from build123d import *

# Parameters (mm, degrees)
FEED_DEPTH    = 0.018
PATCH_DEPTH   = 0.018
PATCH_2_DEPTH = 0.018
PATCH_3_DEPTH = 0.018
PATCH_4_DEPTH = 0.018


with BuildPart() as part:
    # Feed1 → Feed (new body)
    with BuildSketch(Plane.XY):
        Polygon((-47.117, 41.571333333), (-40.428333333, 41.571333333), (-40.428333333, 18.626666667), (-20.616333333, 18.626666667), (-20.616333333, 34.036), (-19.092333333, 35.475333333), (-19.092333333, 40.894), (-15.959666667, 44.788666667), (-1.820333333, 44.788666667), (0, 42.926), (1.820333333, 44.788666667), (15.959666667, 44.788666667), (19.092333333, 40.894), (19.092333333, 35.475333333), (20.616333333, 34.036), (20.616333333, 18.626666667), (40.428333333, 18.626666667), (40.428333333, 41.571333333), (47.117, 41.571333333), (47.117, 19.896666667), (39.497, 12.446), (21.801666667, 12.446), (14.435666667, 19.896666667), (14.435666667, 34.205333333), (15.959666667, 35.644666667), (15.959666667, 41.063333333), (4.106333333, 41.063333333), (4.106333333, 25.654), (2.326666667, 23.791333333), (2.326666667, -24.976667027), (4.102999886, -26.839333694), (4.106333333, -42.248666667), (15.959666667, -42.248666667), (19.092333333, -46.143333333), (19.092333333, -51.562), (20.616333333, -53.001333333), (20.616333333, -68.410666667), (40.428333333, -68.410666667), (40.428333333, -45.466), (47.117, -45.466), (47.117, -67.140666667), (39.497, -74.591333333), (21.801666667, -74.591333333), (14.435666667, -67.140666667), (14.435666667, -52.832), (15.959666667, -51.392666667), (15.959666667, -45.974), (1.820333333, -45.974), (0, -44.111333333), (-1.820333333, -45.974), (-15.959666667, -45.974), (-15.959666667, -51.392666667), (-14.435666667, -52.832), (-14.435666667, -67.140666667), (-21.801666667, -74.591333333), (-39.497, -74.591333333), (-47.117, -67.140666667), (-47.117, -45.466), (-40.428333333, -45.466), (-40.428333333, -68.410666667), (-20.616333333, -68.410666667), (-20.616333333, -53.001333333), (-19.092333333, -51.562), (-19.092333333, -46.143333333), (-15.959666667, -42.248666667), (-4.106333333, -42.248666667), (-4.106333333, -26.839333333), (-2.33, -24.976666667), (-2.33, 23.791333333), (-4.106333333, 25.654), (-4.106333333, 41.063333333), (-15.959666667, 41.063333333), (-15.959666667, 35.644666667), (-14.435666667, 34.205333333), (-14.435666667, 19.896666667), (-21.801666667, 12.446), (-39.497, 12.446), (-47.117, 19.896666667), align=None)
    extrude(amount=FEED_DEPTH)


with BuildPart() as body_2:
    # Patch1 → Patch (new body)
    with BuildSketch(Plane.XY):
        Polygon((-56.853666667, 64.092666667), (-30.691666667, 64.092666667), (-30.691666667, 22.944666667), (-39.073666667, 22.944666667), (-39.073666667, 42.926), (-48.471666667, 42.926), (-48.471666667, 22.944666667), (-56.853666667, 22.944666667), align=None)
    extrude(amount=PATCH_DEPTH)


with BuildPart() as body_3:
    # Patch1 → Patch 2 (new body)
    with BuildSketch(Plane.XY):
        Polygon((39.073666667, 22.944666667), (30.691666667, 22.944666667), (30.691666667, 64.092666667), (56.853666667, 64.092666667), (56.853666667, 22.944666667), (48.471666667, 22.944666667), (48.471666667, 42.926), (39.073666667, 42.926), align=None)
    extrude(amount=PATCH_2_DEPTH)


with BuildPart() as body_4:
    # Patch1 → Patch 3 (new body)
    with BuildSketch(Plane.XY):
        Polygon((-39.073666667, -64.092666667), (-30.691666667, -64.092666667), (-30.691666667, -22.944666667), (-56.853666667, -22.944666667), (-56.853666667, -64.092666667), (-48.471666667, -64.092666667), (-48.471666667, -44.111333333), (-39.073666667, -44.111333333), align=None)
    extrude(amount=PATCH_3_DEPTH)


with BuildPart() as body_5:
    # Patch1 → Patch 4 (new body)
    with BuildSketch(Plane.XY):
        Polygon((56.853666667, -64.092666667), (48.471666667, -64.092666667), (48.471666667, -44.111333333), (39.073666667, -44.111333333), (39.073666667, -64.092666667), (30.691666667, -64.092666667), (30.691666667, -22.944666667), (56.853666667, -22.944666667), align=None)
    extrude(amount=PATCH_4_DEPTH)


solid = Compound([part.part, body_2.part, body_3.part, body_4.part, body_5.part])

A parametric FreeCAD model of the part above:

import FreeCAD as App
import Part
import Sketcher
Q = App.Units.Quantity


def add_polygon(sketch, points):
    """Adds a closed chain of lines whose ends are joined by coincident constraints."""
    first, n = sketch.GeometryCount, len(points)
    for a, b in zip(points, points[1:] + points[:1]):
        sketch.addGeometry(Part.LineSegment(App.Vector(*a, 0), App.Vector(*b, 0)), False)
    for i in range(n):
        sketch.addConstraint(Sketcher.Constraint("Coincident", first + i, 2, first + (i + 1) % n, 1))

doc = App.newDocument("Part")
body = doc.addObject("PartDesign::Body", "Body")

# Sketch on XY plane
sketch1 = doc.addObject("Sketcher::SketchObject", "Sketch")
body.addObject(sketch1)
sketch1.AttachmentSupport = (doc.XY_Plane, [""])
sketch1.MapMode = "FlatFace"
add_polygon(sketch1, [(-40.4, 41.6), (-47.1, 41.6), (-47.1, 19.9), (-39.5, 12.4), (-21.8, 12.4), (-14.4, 19.9), (-14.4, 34.2), (-16, 35.6), (-16, 41.1), (-4.1, 41.1), (-4.1, 25.7), (-2.3, 23.8), (-2.3, -25), (-4.1, -26.8), (-4.1, -42.2), (-16, -42.2), (-19.1, -46.1), (-19.1, -51.6), (-20.6, -53), (-20.6, -68.4), (-40.4, -68.4), (-40.4, -45.5), (-47.1, -45.5), (-47.1, -67.1), (-39.5, -74.6), (-21.8, -74.6), (-14.4, -67.1), (-14.4, -52.8), (-16, -51.4), (-16, -46), (-1.8, -46), (0, -44.1), (1.8, -46), (16, -46), (16, -51.4), (14.4, -52.8), (14.4, -67.1), (21.8, -74.6), (39.5, -74.6), (47.1, -67.1), (47.1, -45.5), (40.4, -45.5), (40.4, -68.4), (20.6, -68.4), (20.6, -53), (19.1, -51.6), (19.1, -46.1), (16, -42.2), (4.1, -42.2), (4.1, -26.8), (2.3, -25), (2.3, 23.8), (4.1, 25.7), (4.1, 41.1), (16, 41.1), (16, 35.6), (14.4, 34.2), (14.4, 19.9), (21.8, 12.4), (39.5, 12.4), (47.1, 19.9), (47.1, 41.6), (40.4, 41.6), (40.4, 18.6), (20.6, 18.6), (20.6, 34), (19.1, 35.5), (19.1, 40.9), (16, 44.8), (1.8, 44.8), (0, 42.9), (-1.8, 44.8), (-16, 44.8), (-19.1, 40.9), (-19.1, 35.5), (-20.6, 34), (-20.6, 18.6), (-40.4, 18.6)])  # lines 0-77
sketch1.addConstraint([
    Sketcher.Constraint("Horizontal", 0),
    Sketcher.Constraint("Vertical", 1),
    Sketcher.Constraint("Horizontal", 3),
    Sketcher.Constraint("Vertical", 5),
    Sketcher.Constraint("Vertical", 7),
    Sketcher.Constraint("Horizontal", 8),
    Sketcher.Constraint("Vertical", 9),
    Sketcher.Constraint("Vertical", 11),
    Sketcher.Constraint("Vertical", 13),
    Sketcher.Constraint("Horizontal", 14),
    Sketcher.Constraint("Vertical", 16),
    Sketcher.Constraint("Vertical", 18),
    Sketcher.Constraint("Horizontal", 19),
    Sketcher.Constraint("Vertical", 20),
    Sketcher.Constraint("Horizontal", 21),
    Sketcher.Constraint("Vertical", 22),
    Sketcher.Constraint("Horizontal", 24),
    Sketcher.Constraint("Vertical", 26),
    Sketcher.Constraint("Vertical", 28),
    Sketcher.Constraint("Horizontal", 29),
    Sketcher.Constraint("Horizontal", 32),
    Sketcher.Constraint("Vertical", 33),
    Sketcher.Constraint("Vertical", 35),
    Sketcher.Constraint("Horizontal", 37),
    Sketcher.Constraint("Vertical", 39),
    Sketcher.Constraint("Horizontal", 40),
    Sketcher.Constraint("Vertical", 41),
    Sketcher.Constraint("Horizontal", 42),
    Sketcher.Constraint("Vertical", 43),
    Sketcher.Constraint("Vertical", 45),
    Sketcher.Constraint("Horizontal", 47),
    Sketcher.Constraint("Vertical", 50),
    Sketcher.Constraint("Vertical", 52),
    Sketcher.Constraint("Horizontal", 53),
    Sketcher.Constraint("Vertical", 54),
    Sketcher.Constraint("Vertical", 56),
    Sketcher.Constraint("Horizontal", 58),
    Sketcher.Constraint("Vertical", 60),
    Sketcher.Constraint("Horizontal", 61),
    Sketcher.Constraint("Vertical", 62),
    Sketcher.Constraint("Horizontal", 63),
    Sketcher.Constraint("Vertical", 64),
    Sketcher.Constraint("Vertical", 66),
    Sketcher.Constraint("Horizontal", 68),
    Sketcher.Constraint("Horizontal", 71),
    Sketcher.Constraint("Vertical", 73),
    Sketcher.Constraint("Vertical", 75),
    Sketcher.Constraint("Horizontal", 76),
    Sketcher.Constraint("Vertical", 77),
    Sketcher.Constraint("Symmetric", 29, 2, 31, 2, -2),
    Sketcher.Constraint("Symmetric", 27, 2, 33, 2, -2),
    Sketcher.Constraint("Symmetric", 26, 2, 34, 2, -2),
    Sketcher.Constraint("Symmetric", 24, 2, 36, 2, -2),
    Sketcher.Constraint("Symmetric", 22, 2, 38, 2, -2),
    Sketcher.Constraint("Symmetric", 20, 2, 40, 2, -2),
    Sketcher.Constraint("Symmetric", 18, 2, 42, 2, -2),
    Sketcher.Constraint("Symmetric", 16, 2, 44, 2, -2),
    Sketcher.Constraint("Symmetric", 14, 2, 46, 2, -2),
    Sketcher.Constraint("Symmetric", 9, 2, 51, 2, -2),
    Sketcher.Constraint("Symmetric", 7, 2, 53, 2, -2),
    Sketcher.Constraint("Symmetric", 5, 2, 55, 2, -2),
    Sketcher.Constraint("Symmetric", 3, 2, 57, 2, -2),
    Sketcher.Constraint("Symmetric", 1, 2, 59, 2, -2),
    Sketcher.Constraint("Symmetric", 68, 2, 70, 2, -2),
    Sketcher.Constraint("Symmetric", 66, 2, 72, 2, -2),
    Sketcher.Constraint("Symmetric", 64, 2, 74, 2, -2),
    Sketcher.Constraint("Symmetric", 62, 2, 76, 2, -2),
    Sketcher.Constraint("PointOnObject", 30, 2, -2),
    Sketcher.Constraint("PointOnObject", 69, 2, -2),
    Sketcher.Constraint("Parallel", 2, 23),
    Sketcher.Constraint("Parallel", 4, 25),
    Sketcher.Constraint("Parallel", 6, 27),
    Sketcher.Constraint("Parallel", 17, 34),
    Sketcher.Constraint("Parallel", 27, 44),
    Sketcher.Constraint("Parallel", 10, 49),
    Sketcher.Constraint("Parallel", 34, 55),
    Sketcher.Constraint("Parallel", 36, 57),
    Sketcher.Constraint("Parallel", 38, 59),
    Sketcher.Constraint("Parallel", 44, 65),
    Sketcher.Constraint("Parallel", 46, 67),
    Sketcher.Constraint("Parallel", 30, 69),
    Sketcher.Constraint("Parallel", 15, 72),
    Sketcher.Constraint("Parallel", 55, 74),
    Sketcher.Constraint("Horizontal", 1, 2, 4, 2),
    Sketcher.Constraint("Horizontal", 22, 2, 25, 2),
    Sketcher.Constraint("Horizontal", 25, 2, 35, 2),
    Sketcher.Constraint("Horizontal", 15, 2, 45, 2),
    Sketcher.Constraint("Horizontal", 12, 2, 48, 2),
    Sketcher.Constraint("Horizontal", 11, 2, 49, 2),
    Sketcher.Constraint("Horizontal", 10, 2, 50, 2),
    Sketcher.Constraint("Horizontal", 0, 2, 60, 2),
    Sketcher.Constraint("Vertical", 9, 2, 12, 2),
    Sketcher.Constraint("Vertical", 7, 2, 14, 2),
    Sketcher.Constraint("Vertical", 1, 2, 21, 2),
    Sketcher.Constraint("Vertical", 2, 2, 23, 2),
    Sketcher.Constraint("Vertical", 3, 2, 24, 2),
    Sketcher.Constraint("Vertical", 14, 2, 27, 2),
    Sketcher.Constraint("Vertical", 47, 2, 51, 2),
    Sketcher.Constraint("Vertical", 41, 2, 61, 2),
    Sketcher.Constraint("Vertical", 43, 2, 63, 2),
    Sketcher.Constraint("Vertical", 45, 2, 65, 2),
    Sketcher.Constraint("Vertical", 54, 2, 67, 2),
    Sketcher.Constraint("Vertical", 31, 2, 68, 2),
    Sketcher.Constraint("Equal", 24, 37),
    Sketcher.Constraint("Equal", 9, 13),
    Sketcher.Constraint("Equal", 7, 16),
    Sketcher.Constraint("Equal", 13, 18),
    Sketcher.Constraint("Equal", 1, 22),
    Sketcher.Constraint("Equal", 5, 26),
    Sketcher.Constraint("Equal", 16, 28),
    Sketcher.Constraint("Equal", 41, 62),
    Sketcher.Constraint("Equal", 52, 64),
    Sketcher.Constraint("Equal", 54, 66),
    Sketcher.Constraint("Equal", 10, 12),
    Sketcher.Constraint("Equal", 6, 17),
    Sketcher.Constraint("DistanceX", 19, 2, 19, 1, Q("0.78 in")),
    Sketcher.Constraint("DistanceY", 11, 2, 11, 1, Q("1.92 in")),
    Sketcher.Constraint("DistanceY", -1, 1, 2, 2, Q("0.49 in")),
    Sketcher.Constraint("DistanceY", -1, 1, 9, 2, Q("1.01 in")),
    Sketcher.Constraint("DistanceY", 16, 2, -1, 1, Q("2.03 in")),
    Sketcher.Constraint("DistanceY", 20, 2, -1, 1, Q("1.79 in")),
    Sketcher.Constraint("DistanceY", 26, 2, -1, 1, Q("2.08 in")),
    Sketcher.Constraint("DistanceY", 28, 2, -1, 1, Q("1.81 in")),
    Sketcher.Constraint("DistanceY", -1, 1, 64, 2, Q("1.34 in")),
    Sketcher.Constraint("DistanceY", -1, 1, 69, 2, Q("1.69 in")),
    Sketcher.Constraint("DistanceX", 0, 2, -1, 1, Q("1.855 in")),
    Sketcher.Constraint("DistanceX", 2, 2, -1, 1, Q("1.555 in")),
    Sketcher.Constraint("DistanceX", 10, 2, -1, 1, Q("2.33 mm")),
    Sketcher.Constraint("DistanceX", -1, 1, 48, 2, Q("4.103 mm")),
    Sketcher.Constraint("Distance", 6, Q("2.096248 mm")),
    Sketcher.Constraint("DistanceX", 0, 2, 0, 1, Q("6.688667 mm")),
    Sketcher.Constraint("DistanceX", 3, 1, 3, 2, Q("17.695333 mm")),
    Sketcher.Constraint("DistanceX", 8, 1, 8, 2, Q("11.853333 mm")),
    Sketcher.Constraint("DistanceX", 29, 1, 29, 2, Q("14.139333 mm")),
    Sketcher.Constraint("DistanceY", 1, 2, 1, 1, Q("21.674667 mm")),
    Sketcher.Constraint("DistanceY", 7, 1, 7, 2, Q("5.418667 mm")),
    Sketcher.Constraint("Distance", 4, Q("10.477137 mm")),
    Sketcher.Constraint("Distance", 10, Q("2.573886 mm")),
])
pad1 = doc.addObject("PartDesign::Pad", "Pad")
body.addObject(pad1)
pad1.Profile = sketch1
pad1.Length = 0.018
body2 = doc.addObject("PartDesign::Body", "Body001")

# Sketch on XY plane
sketch2 = doc.addObject("Sketcher::SketchObject", "Sketch001")
body2.addObject(sketch2)
sketch2.AttachmentSupport = (doc.getObject("XY_Plane001"), [""])
sketch2.MapMode = "FlatFace"
add_polygon(sketch2, [(-31, 64), (-57, 64), (-57, 23), (-48, 23), (-48, 43), (-39, 43), (-39, 23), (-31, 23)])  # lines 0-7
sketch2.addConstraint([
    Sketcher.Constraint("Horizontal", 0),
    Sketcher.Constraint("Vertical", 1),
    Sketcher.Constraint("Horizontal", 2),
    Sketcher.Constraint("Vertical", 3),
    Sketcher.Constraint("Horizontal", 4),
    Sketcher.Constraint("Vertical", 5),
    Sketcher.Constraint("Horizontal", 6),
    Sketcher.Constraint("Vertical", 7),
    Sketcher.Constraint("Horizontal", 2, 2, 5, 2),
    Sketcher.Constraint("Equal", 2, 6),
    Sketcher.Constraint("DistanceX", 0, 2, 0, 1, Q("1.03 in")),
    Sketcher.Constraint("DistanceX", 2, 1, 2, 2, Q("0.33 in")),
    Sketcher.Constraint("DistanceY", 1, 2, 1, 1, Q("1.62 in")),
    Sketcher.Constraint("DistanceY", -1, 1, 3, 2, Q("1.69 in")),
    Sketcher.Constraint("DistanceY", 3, 1, 3, 2, Q("19.981333 mm")),
    Sketcher.Constraint("DistanceX", 0, 2, -1, 1, Q("56.853667 mm")),
])
pad2 = doc.addObject("PartDesign::Pad", "Pad001")
body2.addObject(pad2)
pad2.Profile = sketch2
pad2.Length = 0.018
body3 = doc.addObject("PartDesign::Body", "Body002")

# Sketch on XY plane
sketch3 = doc.addObject("Sketcher::SketchObject", "Sketch002")
body3.addObject(sketch3)
sketch3.AttachmentSupport = (doc.getObject("XY_Plane002"), [""])
sketch3.MapMode = "FlatFace"
add_polygon(sketch3, [(31, 23), (39, 23), (39, 43), (48, 43), (48, 23), (57, 23), (57, 64), (31, 64)])  # lines 0-7
sketch3.addConstraint([
    Sketcher.Constraint("Horizontal", 0),
    Sketcher.Constraint("Vertical", 1),
    Sketcher.Constraint("Horizontal", 2),
    Sketcher.Constraint("Vertical", 3),
    Sketcher.Constraint("Horizontal", 4),
    Sketcher.Constraint("Vertical", 5),
    Sketcher.Constraint("Horizontal", 6),
    Sketcher.Constraint("Vertical", 7),
    Sketcher.Constraint("Horizontal", 0, 2, 3, 2),
    Sketcher.Constraint("Equal", 0, 4),
    Sketcher.Constraint("DistanceX", 0, 1, 0, 2, Q("0.33 in")),
    Sketcher.Constraint("DistanceX", 2, 1, 2, 2, Q("0.37 in")),
    Sketcher.Constraint("DistanceY", 5, 1, 5, 2, Q("1.62 in")),
    Sketcher.Constraint("DistanceY", -1, 1, 1, 2, Q("1.69 in")),
    Sketcher.Constraint("DistanceY", 1, 1, 1, 2, Q("19.981333 mm")),
    Sketcher.Constraint("DistanceX", -1, 1, 0, 2, Q("39.073667 mm")),
])
pad3 = doc.addObject("PartDesign::Pad", "Pad002")
body3.addObject(pad3)
pad3.Profile = sketch3
pad3.Length = 0.018
body4 = doc.addObject("PartDesign::Body", "Body003")

# Sketch on XY plane
sketch4 = doc.addObject("Sketcher::SketchObject", "Sketch003")
body4.addObject(sketch4)
sketch4.AttachmentSupport = (doc.getObject("XY_Plane003"), [""])
sketch4.MapMode = "FlatFace"
add_polygon(sketch4, [(-39, -64), (-31, -64), (-31, -23), (-57, -23), (-57, -64), (-48, -64), (-48, -44), (-39, -44)])  # lines 0-7
sketch4.addConstraint([
    Sketcher.Constraint("Horizontal", 0),
    Sketcher.Constraint("Vertical", 1),
    Sketcher.Constraint("Horizontal", 2),
    Sketcher.Constraint("Vertical", 3),
    Sketcher.Constraint("Horizontal", 4),
    Sketcher.Constraint("Vertical", 5),
    Sketcher.Constraint("Horizontal", 6),
    Sketcher.Constraint("Vertical", 7),
    Sketcher.Constraint("Horizontal", 0, 2, 3, 2),
    Sketcher.Constraint("Equal", 0, 4),
    Sketcher.Constraint("DistanceX", 0, 1, 0, 2, Q("0.33 in")),
    Sketcher.Constraint("DistanceX", 2, 2, 2, 1, Q("1.03 in")),
    Sketcher.Constraint("DistanceY", 1, 1, 1, 2, Q("1.62 in")),
    Sketcher.Constraint("DistanceY", 5, 1, 5, 2, Q("19.981333 mm")),
    Sketcher.Constraint("DistanceX", 0, 2, -1, 1, Q("30.691667 mm")),
    Sketcher.Constraint("DistanceY", 0, 2, -1, 1, Q("64.092667 mm")),
])
pad4 = doc.addObject("PartDesign::Pad", "Pad003")
body4.addObject(pad4)
pad4.Profile = sketch4
pad4.Length = 0.018
body5 = doc.addObject("PartDesign::Body", "Body004")

# Sketch on XY plane
sketch5 = doc.addObject("Sketcher::SketchObject", "Sketch004")
body5.addObject(sketch5)
sketch5.AttachmentSupport = (doc.getObject("XY_Plane004"), [""])
sketch5.MapMode = "FlatFace"
add_polygon(sketch5, [(48, -64), (57, -64), (57, -23), (31, -23), (31, -64), (39, -64), (39, -44), (48, -44)])  # lines 0-7
sketch5.addConstraint([
    Sketcher.Constraint("Horizontal", 0),
    Sketcher.Constraint("Vertical", 1),
    Sketcher.Constraint("Horizontal", 2),
    Sketcher.Constraint("Vertical", 3),
    Sketcher.Constraint("Horizontal", 4),
    Sketcher.Constraint("Vertical", 5),
    Sketcher.Constraint("Horizontal", 6),
    Sketcher.Constraint("Vertical", 7),
    Sketcher.Constraint("Horizontal", 0, 2, 3, 2),
    Sketcher.Constraint("Equal", 0, 4),
    Sketcher.Constraint("DistanceX", 0, 1, 0, 2, Q("0.33 in")),
    Sketcher.Constraint("DistanceX", 2, 2, 2, 1, Q("1.03 in")),
    Sketcher.Constraint("DistanceY", 1, 1, 1, 2, Q("1.62 in")),
    Sketcher.Constraint("DistanceY", 5, 1, 5, 2, Q("19.981333 mm")),
    Sketcher.Constraint("DistanceX", -1, 1, 0, 2, Q("56.853667 mm")),
    Sketcher.Constraint("DistanceY", 0, 2, -1, 1, Q("64.092667 mm")),
])
pad5 = doc.addObject("PartDesign::Pad", "Pad004")
body5.addObject(pad5)
pad5.Profile = sketch5
pad5.Length = 0.018

doc.recompute()
